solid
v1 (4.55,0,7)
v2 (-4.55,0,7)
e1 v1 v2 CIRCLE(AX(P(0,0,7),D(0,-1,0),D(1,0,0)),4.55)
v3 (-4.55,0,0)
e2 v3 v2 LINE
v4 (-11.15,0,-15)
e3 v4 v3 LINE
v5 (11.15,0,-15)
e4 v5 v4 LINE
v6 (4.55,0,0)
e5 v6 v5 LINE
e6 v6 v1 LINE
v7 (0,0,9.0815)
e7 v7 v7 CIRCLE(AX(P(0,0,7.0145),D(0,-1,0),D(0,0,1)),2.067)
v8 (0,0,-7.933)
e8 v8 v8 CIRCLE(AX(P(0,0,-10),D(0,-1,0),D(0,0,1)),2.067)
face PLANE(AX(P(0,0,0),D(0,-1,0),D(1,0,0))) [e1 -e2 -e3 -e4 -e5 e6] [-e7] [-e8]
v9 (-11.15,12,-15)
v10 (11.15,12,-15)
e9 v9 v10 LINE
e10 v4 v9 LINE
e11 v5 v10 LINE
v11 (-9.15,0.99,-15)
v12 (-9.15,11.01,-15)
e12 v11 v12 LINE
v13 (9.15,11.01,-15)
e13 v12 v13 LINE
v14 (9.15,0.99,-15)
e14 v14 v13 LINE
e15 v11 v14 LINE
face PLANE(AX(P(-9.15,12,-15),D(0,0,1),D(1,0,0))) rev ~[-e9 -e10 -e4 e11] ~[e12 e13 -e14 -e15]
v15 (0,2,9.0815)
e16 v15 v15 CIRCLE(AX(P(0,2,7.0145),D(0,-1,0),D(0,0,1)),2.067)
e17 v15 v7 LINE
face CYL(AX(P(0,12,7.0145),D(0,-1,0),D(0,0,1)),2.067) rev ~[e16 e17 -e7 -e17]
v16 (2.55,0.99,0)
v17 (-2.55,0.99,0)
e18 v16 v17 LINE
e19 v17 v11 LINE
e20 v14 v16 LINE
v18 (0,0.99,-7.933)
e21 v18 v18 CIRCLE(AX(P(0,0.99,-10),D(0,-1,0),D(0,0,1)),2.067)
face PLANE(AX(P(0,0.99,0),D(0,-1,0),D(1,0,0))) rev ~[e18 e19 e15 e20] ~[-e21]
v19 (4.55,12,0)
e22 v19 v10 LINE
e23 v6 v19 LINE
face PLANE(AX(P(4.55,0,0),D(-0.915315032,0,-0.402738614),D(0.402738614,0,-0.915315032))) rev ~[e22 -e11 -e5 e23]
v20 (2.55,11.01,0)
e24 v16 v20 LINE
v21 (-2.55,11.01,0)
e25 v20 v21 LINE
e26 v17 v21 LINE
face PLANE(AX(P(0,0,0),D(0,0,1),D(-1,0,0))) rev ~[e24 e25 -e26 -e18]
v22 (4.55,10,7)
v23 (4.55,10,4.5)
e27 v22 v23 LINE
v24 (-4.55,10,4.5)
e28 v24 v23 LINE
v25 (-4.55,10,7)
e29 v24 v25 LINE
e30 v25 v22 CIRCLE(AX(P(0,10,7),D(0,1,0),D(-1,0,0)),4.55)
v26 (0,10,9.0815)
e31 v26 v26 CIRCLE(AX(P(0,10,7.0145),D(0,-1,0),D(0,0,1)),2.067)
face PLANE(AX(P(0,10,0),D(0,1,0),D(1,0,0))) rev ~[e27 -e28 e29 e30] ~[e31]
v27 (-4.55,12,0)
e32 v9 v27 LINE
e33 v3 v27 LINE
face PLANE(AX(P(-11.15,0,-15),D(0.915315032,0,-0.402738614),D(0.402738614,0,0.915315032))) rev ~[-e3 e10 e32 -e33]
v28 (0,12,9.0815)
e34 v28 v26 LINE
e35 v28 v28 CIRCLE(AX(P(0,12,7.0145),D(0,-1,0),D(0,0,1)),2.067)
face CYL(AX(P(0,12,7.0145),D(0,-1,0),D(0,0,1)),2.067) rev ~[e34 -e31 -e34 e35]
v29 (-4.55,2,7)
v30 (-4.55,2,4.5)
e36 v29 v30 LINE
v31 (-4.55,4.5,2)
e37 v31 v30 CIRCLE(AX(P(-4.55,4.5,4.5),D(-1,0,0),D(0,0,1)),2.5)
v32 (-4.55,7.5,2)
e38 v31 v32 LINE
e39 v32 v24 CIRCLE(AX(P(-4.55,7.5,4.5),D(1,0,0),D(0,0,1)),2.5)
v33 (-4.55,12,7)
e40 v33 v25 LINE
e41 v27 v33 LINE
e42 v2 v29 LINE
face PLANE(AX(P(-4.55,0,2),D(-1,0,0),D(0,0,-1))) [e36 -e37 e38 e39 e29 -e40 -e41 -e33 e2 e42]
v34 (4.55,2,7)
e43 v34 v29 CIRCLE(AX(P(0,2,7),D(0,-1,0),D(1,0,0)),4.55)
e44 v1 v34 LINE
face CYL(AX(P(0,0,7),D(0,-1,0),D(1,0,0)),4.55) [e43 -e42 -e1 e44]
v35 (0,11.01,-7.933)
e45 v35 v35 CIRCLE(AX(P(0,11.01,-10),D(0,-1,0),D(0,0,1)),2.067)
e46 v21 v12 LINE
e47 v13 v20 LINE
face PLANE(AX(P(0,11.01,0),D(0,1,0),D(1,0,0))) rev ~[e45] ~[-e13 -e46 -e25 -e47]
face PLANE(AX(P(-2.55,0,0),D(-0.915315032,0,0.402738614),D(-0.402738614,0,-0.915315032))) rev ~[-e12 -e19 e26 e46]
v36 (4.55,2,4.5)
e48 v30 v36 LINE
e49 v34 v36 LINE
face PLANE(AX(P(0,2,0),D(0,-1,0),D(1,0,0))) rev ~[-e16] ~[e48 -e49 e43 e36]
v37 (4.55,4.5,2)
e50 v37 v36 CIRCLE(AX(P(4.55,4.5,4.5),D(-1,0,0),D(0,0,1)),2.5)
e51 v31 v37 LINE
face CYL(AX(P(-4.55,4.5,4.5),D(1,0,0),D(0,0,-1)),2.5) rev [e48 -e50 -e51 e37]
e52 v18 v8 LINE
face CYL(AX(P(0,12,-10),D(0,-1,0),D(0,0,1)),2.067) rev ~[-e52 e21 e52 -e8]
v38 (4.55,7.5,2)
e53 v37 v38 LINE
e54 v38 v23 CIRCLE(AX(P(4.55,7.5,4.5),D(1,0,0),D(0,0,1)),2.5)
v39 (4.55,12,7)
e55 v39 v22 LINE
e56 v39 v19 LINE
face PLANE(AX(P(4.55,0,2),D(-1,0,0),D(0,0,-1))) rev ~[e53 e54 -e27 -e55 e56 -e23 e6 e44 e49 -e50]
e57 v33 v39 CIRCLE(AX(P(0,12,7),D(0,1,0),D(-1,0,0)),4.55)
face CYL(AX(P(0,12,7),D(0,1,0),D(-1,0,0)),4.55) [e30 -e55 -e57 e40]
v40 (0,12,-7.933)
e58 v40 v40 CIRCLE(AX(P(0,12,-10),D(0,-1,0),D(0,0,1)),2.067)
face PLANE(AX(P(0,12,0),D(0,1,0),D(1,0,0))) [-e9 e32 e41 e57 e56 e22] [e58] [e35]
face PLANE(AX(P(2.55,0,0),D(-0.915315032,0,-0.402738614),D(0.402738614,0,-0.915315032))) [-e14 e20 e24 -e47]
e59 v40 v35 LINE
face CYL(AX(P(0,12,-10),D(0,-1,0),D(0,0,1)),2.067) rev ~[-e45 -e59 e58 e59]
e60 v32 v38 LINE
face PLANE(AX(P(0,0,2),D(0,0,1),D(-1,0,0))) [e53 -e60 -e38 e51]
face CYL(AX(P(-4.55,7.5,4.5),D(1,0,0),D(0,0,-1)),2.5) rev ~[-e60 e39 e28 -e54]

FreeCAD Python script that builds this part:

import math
import FreeCAD as App
import Part
import Sketcher

V = App.Vector
Q = App.Units.Quantity


def edges_at(feature, points):
    """Names of the edges that pass closest to the given points."""
    edges = feature.Shape.Edges
    near = lambda p: min(range(len(edges)), key=lambda i: edges[i].distToShape(Part.Vertex(*p))[0])
    return sorted({f"Edge{near(p) + 1}" for p in points})

doc = App.newDocument("Part")
body = doc.addObject("PartDesign::Body", "Body")

# Sketch on XZ plane
sketch1 = doc.addObject("Sketcher::SketchObject", "Sketch")
body.addObject(sketch1)
sketch1.AttachmentSupport = (doc.XZ_Plane, [""])
sketch1.MapMode = "FlatFace"
sketch1.addGeometry(Part.LineSegment(V(-4.5, 2, 0), V(4.5, 2, 0)), False)
sketch1.addGeometry(Part.LineSegment(V(4.5, 2, 0), V(4.5, 0, 0)), False)
sketch1.addGeometry(Part.LineSegment(V(4.5, 0, 0), V(11.2, -15, 0)), False)
sketch1.addGeometry(Part.LineSegment(V(11.2, -15, 0), V(9.2, -15, 0)), False)
sketch1.addGeometry(Part.LineSegment(V(9.2, -15, 0), V(2.5, 0, 0)), False)
sketch1.addGeometry(Part.LineSegment(V(2.5, 0, 0), V(-2.5, 0, 0)), False)
sketch1.addGeometry(Part.LineSegment(V(-2.5, 0, 0), V(-9.2, -15, 0)), False)
sketch1.addGeometry(Part.LineSegment(V(-9.2, -15, 0), V(-11.2, -15, 0)), False)
sketch1.addGeometry(Part.LineSegment(V(-11.2, -15, 0), V(-4.5, 0, 0)), False)
sketch1.addGeometry(Part.LineSegment(V(-4.5, 0, 0), V(-4.5, 2, 0)), False)
sketch1.addConstraint(Sketcher.Constraint("Coincident", 0, 2, 1, 1))
sketch1.addConstraint(Sketcher.Constraint("Coincident", 1, 2, 2, 1))
sketch1.addConstraint(Sketcher.Constraint("Coincident", 2, 2, 3, 1))
sketch1.addConstraint(Sketcher.Constraint("Coincident", 3, 2, 4, 1))
sketch1.addConstraint(Sketcher.Constraint("Coincident", 4, 2, 5, 1))
sketch1.addConstraint(Sketcher.Constraint("Coincident", 5, 2, 6, 1))
sketch1.addConstraint(Sketcher.Constraint("Coincident", 6, 2, 7, 1))
sketch1.addConstraint(Sketcher.Constraint("Coincident", 7, 2, 8, 1))
sketch1.addConstraint(Sketcher.Constraint("Coincident", 8, 2, 9, 1))
sketch1.addConstraint(Sketcher.Constraint("Coincident", 9, 2, 0, 1))
sketch1.addConstraint(Sketcher.Constraint("Horizontal", 0))
sketch1.addConstraint(Sketcher.Constraint("Vertical", 1))
sketch1.addConstraint(Sketcher.Constraint("Horizontal", 3))
sketch1.addConstraint(Sketcher.Constraint("Horizontal", 5))
sketch1.addConstraint(Sketcher.Constraint("Horizontal", 7))
sketch1.addConstraint(Sketcher.Constraint("Vertical", 9))
sketch1.addConstraint(Sketcher.Constraint("Symmetric", 4, 2, 5, 2, -1, 1))
sketch1.addConstraint(Sketcher.Constraint("Symmetric", 1, 2, 8, 2, -1, 1))
sketch1.addConstraint(Sketcher.Constraint("Symmetric", 3, 2, 6, 2, -2))
sketch1.addConstraint(Sketcher.Constraint("PointOnObject", 1, 2, -1))
sketch1.addConstraint(Sketcher.Constraint("Parallel", 2, 4))
sketch1.addConstraint(Sketcher.Constraint("Parallel", 6, 8))
sketch1.addConstraint(Sketcher.Constraint("Equal", 7, 1))
sketch1.addConstraint(Sketcher.Constraint("DistanceX", 3, 2, 3, 1, Q("2 mm")))
sketch1.addConstraint(Sketcher.Constraint("DistanceY", 2, 2, -1, 1, Q("15 mm")))
sketch1.addConstraint(Sketcher.Constraint("DistanceX", -1, 1, 3, 2, Q("9.15 mm")))
sketch1.addConstraint(Sketcher.Constraint("DistanceX", -1, 1, 4, 2, Q("2.55 mm")))
pad1 = doc.addObject("PartDesign::Pad", "Pad")
body.addObject(pad1)
pad1.Profile = sketch1
pad1.Length = 12
pad1.Reversed = True

# Sketch on XZ plane
sketch2 = doc.addObject("Sketcher::SketchObject", "Sketch001")
body.addObject(sketch2)
sketch2.AttachmentSupport = (doc.XZ_Plane, [""])
sketch2.MapMode = "FlatFace"
sketch2.addGeometry(Part.LineSegment(V(3, 0, 0), V(-3, 0, 0)), False)
sketch2.addGeometry(Part.LineSegment(V(-3, 0, 0), V(-9, -15, 0)), False)
sketch2.addGeometry(Part.LineSegment(V(-9, -15, 0), V(9, -15, 0)), False)
sketch2.addGeometry(Part.LineSegment(V(9, -15, 0), V(3, 0, 0)), False)
sketch2.addConstraint(Sketcher.Constraint("Coincident", 0, 2, 1, 1))
sketch2.addConstraint(Sketcher.Constraint("Coincident", 1, 2, 2, 1))
sketch2.addConstraint(Sketcher.Constraint("Coincident", 2, 2, 3, 1))
sketch2.addConstraint(Sketcher.Constraint("Coincident", 3, 2, 0, 1))
sketch2.addConstraint(Sketcher.Constraint("Horizontal", 0))
sketch2.addConstraint(Sketcher.Constraint("Horizontal", 2))
sketch2.addConstraint(Sketcher.Constraint("Symmetric", 0, 2, 3, 2, -1, 1))
sketch2.addConstraint(Sketcher.Constraint("Equal", 1, 3))
sketch2.addConstraint(Sketcher.Constraint("DistanceX", 0, 2, 0, 1, Q("5.1 mm")))
sketch2.addConstraint(Sketcher.Constraint("DistanceX", 2, 1, 2, 2, Q("18.3 mm")))
sketch2.addConstraint(Sketcher.Constraint("DistanceY", 1, 2, -1, 1, Q("15 mm")))
pad2 = doc.addObject("PartDesign::Pad", "Pad001")
body.addObject(pad2)
pad2.Profile = sketch2
pad2.Length = 0.99
pad2.Reversed = True

# Sketch on XZ plane
sketch3 = doc.addObject("Sketcher::SketchObject", "Sketch002")
body.addObject(sketch3)
sketch3.AttachmentSupport = (doc.XZ_Plane, [""])
sketch3.MapMode = "FlatFace"
sketch3.AttachmentOffset = App.Placement(V(0, 0, -12), App.Rotation())
sketch3.addGeometry(Part.LineSegment(V(-3, 0, 0), V(3, 0, 0)), False)
sketch3.addGeometry(Part.LineSegment(V(3, 0, 0), V(9, -15, 0)), False)
sketch3.addGeometry(Part.LineSegment(V(9, -15, 0), V(-9, -15, 0)), False)
sketch3.addGeometry(Part.LineSegment(V(-9, -15, 0), V(-3, 0, 0)), False)
sketch3.addConstraint(Sketcher.Constraint("Coincident", 0, 2, 1, 1))
sketch3.addConstraint(Sketcher.Constraint("Coincident", 1, 2, 2, 1))
sketch3.addConstraint(Sketcher.Constraint("Coincident", 2, 2, 3, 1))
sketch3.addConstraint(Sketcher.Constraint("Coincident", 3, 2, 0, 1))
sketch3.addConstraint(Sketcher.Constraint("Horizontal", 0))
sketch3.addConstraint(Sketcher.Constraint("Horizontal", 2))
sketch3.addConstraint(Sketcher.Constraint("Symmetric", 0, 2, 3, 2, -1, 1))
sketch3.addConstraint(Sketcher.Constraint("Equal", 1, 3))
sketch3.addConstraint(Sketcher.Constraint("DistanceX", 0, 1, 0, 2, Q("5.1 mm")))
sketch3.addConstraint(Sketcher.Constraint("DistanceX", 2, 2, 2, 1, Q("18.3 mm")))
sketch3.addConstraint(Sketcher.Constraint("DistanceY", 1, 2, -1, 1, Q("15 mm")))
pad3 = doc.addObject("PartDesign::Pad", "Pad002")
body.addObject(pad3)
pad3.Profile = sketch3
pad3.Length = 0.99

# Sketch on XZ plane
sketch4 = doc.addObject("Sketcher::SketchObject", "Sketch003")
body.addObject(sketch4)
sketch4.AttachmentSupport = (doc.XZ_Plane, [""])
sketch4.MapMode = "FlatFace"
sketch4.AttachmentOffset = App.Placement(V(0, 0, -12), App.Rotation())
sketch4.addGeometry(Part.Circle(V(0, -10, 0), V(0, 0, 1), 2.1), False)
sketch4.addGeometry(Part.Circle(V(0, -20, 0), V(0, 0, 1), 2.1), False)
sketch4.addConstraint(Sketcher.Constraint("Equal", 0, 1))
sketch4.addConstraint(Sketcher.Constraint("PointOnObject", 0, 3, -2))
sketch4.addConstraint(Sketcher.Constraint("PointOnObject", 1, 3, -2))
sketch4.addConstraint(Sketcher.Constraint("Diameter", 0, Q("4.134 mm")))
sketch4.addConstraint(Sketcher.Constraint("DistanceY", 0, 3, -1, 1, Q("10 mm")))
sketch4.addConstraint(Sketcher.Constraint("DistanceY", 1, 3, -1, 1, Q("20 mm")))
doc.recompute()
hole = doc.addObject("PartDesign::Hole", "Hole")
body.addObject(hole)
hole.Profile = sketch4
hole.ThreadType = "None"
hole.Diameter = 4.134
hole.DepthType = "ThroughAll"
hole.Reversed = True

# Sketch on XZ plane
sketch5 = doc.addObject("Sketcher::SketchObject", "Sketch004")
body.addObject(sketch5)
sketch5.AttachmentSupport = (doc.XZ_Plane, [""])
sketch5.MapMode = "FlatFace"
sketch5.AttachmentOffset = App.Placement(V(0, 0, -12), App.Rotation())
sketch5.addGeometry(Part.LineSegment(V(4.5, 2, 0), V(-4.5, 2, 0)), False)
sketch5.addGeometry(Part.LineSegment(V(-4.5, 2, 0), V(-4.5, 7, 0)), False)
sketch5.addGeometry(Part.ArcOfCircle(Part.Circle(V(0, 7, 0), V(0, 0, 1), 4.5), math.radians(0), math.radians(180)), False)
sketch5.addGeometry(Part.LineSegment(V(4.5, 7, 0), V(4.5, 2, 0)), False)
sketch5.addConstraint(Sketcher.Constraint("Coincident", 0, 2, 1, 1))
sketch5.addConstraint(Sketcher.Constraint("Tangent", 1, 2, 2, 2))
sketch5.addConstraint(Sketcher.Constraint("Tangent", 2, 1, 3, 1))
sketch5.addConstraint(Sketcher.Constraint("Coincident", 3, 2, 0, 1))
sketch5.addConstraint(Sketcher.Constraint("Horizontal", 0))
sketch5.addConstraint(Sketcher.Constraint("Vertical", 1))
sketch5.addConstraint(Sketcher.Constraint("Vertical", 3))
sketch5.addConstraint(Sketcher.Constraint("PointOnObject", 2, 3, -2))
sketch5.addConstraint(Sketcher.Constraint("DistanceY", 1, 1, 1, 2, Q("5 mm")))
sketch5.addConstraint(Sketcher.Constraint("Radius", 2, Q("4.55 mm")))
sketch5.addConstraint(Sketcher.Constraint("DistanceY", -1, 1, 2, 3, Q("7 mm")))
pad4 = doc.addObject("PartDesign::Pad", "Pad003")
body.addObject(pad4)
pad4.Profile = sketch5
pad4.Length = 2
doc.recompute()

fillet = doc.addObject("PartDesign::Fillet", "Fillet")
body.addObject(fillet)
fillet.Base = (pad4, edges_at(pad4, [(0, 10, 2)]))
fillet.Radius = 2.5

# Sketch on XZ plane
sketch6 = doc.addObject("Sketcher::SketchObject", "Sketch005")
body.addObject(sketch6)
sketch6.AttachmentSupport = (doc.XZ_Plane, [""])
sketch6.MapMode = "FlatFace"
sketch6.addGeometry(Part.LineSegment(V(-4.5, 7, 0), V(-4.5, 2, 0)), False)
sketch6.addGeometry(Part.LineSegment(V(-4.5, 2, 0), V(4.5, 2, 0)), False)
sketch6.addGeometry(Part.LineSegment(V(4.5, 2, 0), V(4.5, 7, 0)), False)
sketch6.addGeometry(Part.ArcOfCircle(Part.Circle(V(0, 7, 0), V(0, 0, 1), 4.5), math.radians(0), math.radians(180)), False)
sketch6.addConstraint(Sketcher.Constraint("Coincident", 0, 2, 1, 1))
sketch6.addConstraint(Sketcher.Constraint("Coincident", 1, 2, 2, 1))
sketch6.addConstraint(Sketcher.Constraint("Tangent", 2, 2, 3, 1))
sketch6.addConstraint(Sketcher.Constraint("Tangent", 3, 2, 0, 1))
sketch6.addConstraint(Sketcher.Constraint("Vertical", 0))
sketch6.addConstraint(Sketcher.Constraint("Horizontal", 1))
sketch6.addConstraint(Sketcher.Constraint("Vertical", 2))
sketch6.addConstraint(Sketcher.Constraint("PointOnObject", 3, 3, -2))
sketch6.addConstraint(Sketcher.Constraint("DistanceY", 0, 2, 0, 1, Q("5 mm")))
sketch6.addConstraint(Sketcher.Constraint("Radius", 3, Q("4.55 mm")))
sketch6.addConstraint(Sketcher.Constraint("DistanceY", -1, 1, 3, 3, Q("7 mm")))
pad5 = doc.addObject("PartDesign::Pad", "Pad004")
body.addObject(pad5)
pad5.Profile = sketch6
pad5.Length = 2
pad5.Reversed = True
doc.recompute()

fillet2 = doc.addObject("PartDesign::Fillet", "Fillet001")
body.addObject(fillet2)
fillet2.Base = (pad5, edges_at(pad5, [(0, 2, 2)]))
fillet2.Radius = 2.5

# Sketch on XZ plane
sketch7 = doc.addObject("Sketcher::SketchObject", "Sketch006")
body.addObject(sketch7)
sketch7.AttachmentSupport = (doc.XZ_Plane, [""])
sketch7.MapMode = "FlatFace"
sketch7.AttachmentOffset = App.Placement(V(0, 0, -12), App.Rotation())
sketch7.addGeometry(Part.Circle(V(0, 7, 0), V(0, 0, 1), 2.1), False)
sketch7.addConstraint(Sketcher.Constraint("PointOnObject", 0, 3, -2))
sketch7.addConstraint(Sketcher.Constraint("Diameter", 0, Q("4.134 mm")))
sketch7.addConstraint(Sketcher.Constraint("DistanceY", -1, 1, 0, 3, Q("7.0145 mm")))
doc.recompute()
hole2 = doc.addObject("PartDesign::Hole", "Hole001")
body.addObject(hole2)
hole2.Profile = sketch7
hole2.ThreadType = "None"
hole2.Diameter = 4.134
hole2.DepthType = "ThroughAll"
hole2.Reversed = True

doc.recompute()
